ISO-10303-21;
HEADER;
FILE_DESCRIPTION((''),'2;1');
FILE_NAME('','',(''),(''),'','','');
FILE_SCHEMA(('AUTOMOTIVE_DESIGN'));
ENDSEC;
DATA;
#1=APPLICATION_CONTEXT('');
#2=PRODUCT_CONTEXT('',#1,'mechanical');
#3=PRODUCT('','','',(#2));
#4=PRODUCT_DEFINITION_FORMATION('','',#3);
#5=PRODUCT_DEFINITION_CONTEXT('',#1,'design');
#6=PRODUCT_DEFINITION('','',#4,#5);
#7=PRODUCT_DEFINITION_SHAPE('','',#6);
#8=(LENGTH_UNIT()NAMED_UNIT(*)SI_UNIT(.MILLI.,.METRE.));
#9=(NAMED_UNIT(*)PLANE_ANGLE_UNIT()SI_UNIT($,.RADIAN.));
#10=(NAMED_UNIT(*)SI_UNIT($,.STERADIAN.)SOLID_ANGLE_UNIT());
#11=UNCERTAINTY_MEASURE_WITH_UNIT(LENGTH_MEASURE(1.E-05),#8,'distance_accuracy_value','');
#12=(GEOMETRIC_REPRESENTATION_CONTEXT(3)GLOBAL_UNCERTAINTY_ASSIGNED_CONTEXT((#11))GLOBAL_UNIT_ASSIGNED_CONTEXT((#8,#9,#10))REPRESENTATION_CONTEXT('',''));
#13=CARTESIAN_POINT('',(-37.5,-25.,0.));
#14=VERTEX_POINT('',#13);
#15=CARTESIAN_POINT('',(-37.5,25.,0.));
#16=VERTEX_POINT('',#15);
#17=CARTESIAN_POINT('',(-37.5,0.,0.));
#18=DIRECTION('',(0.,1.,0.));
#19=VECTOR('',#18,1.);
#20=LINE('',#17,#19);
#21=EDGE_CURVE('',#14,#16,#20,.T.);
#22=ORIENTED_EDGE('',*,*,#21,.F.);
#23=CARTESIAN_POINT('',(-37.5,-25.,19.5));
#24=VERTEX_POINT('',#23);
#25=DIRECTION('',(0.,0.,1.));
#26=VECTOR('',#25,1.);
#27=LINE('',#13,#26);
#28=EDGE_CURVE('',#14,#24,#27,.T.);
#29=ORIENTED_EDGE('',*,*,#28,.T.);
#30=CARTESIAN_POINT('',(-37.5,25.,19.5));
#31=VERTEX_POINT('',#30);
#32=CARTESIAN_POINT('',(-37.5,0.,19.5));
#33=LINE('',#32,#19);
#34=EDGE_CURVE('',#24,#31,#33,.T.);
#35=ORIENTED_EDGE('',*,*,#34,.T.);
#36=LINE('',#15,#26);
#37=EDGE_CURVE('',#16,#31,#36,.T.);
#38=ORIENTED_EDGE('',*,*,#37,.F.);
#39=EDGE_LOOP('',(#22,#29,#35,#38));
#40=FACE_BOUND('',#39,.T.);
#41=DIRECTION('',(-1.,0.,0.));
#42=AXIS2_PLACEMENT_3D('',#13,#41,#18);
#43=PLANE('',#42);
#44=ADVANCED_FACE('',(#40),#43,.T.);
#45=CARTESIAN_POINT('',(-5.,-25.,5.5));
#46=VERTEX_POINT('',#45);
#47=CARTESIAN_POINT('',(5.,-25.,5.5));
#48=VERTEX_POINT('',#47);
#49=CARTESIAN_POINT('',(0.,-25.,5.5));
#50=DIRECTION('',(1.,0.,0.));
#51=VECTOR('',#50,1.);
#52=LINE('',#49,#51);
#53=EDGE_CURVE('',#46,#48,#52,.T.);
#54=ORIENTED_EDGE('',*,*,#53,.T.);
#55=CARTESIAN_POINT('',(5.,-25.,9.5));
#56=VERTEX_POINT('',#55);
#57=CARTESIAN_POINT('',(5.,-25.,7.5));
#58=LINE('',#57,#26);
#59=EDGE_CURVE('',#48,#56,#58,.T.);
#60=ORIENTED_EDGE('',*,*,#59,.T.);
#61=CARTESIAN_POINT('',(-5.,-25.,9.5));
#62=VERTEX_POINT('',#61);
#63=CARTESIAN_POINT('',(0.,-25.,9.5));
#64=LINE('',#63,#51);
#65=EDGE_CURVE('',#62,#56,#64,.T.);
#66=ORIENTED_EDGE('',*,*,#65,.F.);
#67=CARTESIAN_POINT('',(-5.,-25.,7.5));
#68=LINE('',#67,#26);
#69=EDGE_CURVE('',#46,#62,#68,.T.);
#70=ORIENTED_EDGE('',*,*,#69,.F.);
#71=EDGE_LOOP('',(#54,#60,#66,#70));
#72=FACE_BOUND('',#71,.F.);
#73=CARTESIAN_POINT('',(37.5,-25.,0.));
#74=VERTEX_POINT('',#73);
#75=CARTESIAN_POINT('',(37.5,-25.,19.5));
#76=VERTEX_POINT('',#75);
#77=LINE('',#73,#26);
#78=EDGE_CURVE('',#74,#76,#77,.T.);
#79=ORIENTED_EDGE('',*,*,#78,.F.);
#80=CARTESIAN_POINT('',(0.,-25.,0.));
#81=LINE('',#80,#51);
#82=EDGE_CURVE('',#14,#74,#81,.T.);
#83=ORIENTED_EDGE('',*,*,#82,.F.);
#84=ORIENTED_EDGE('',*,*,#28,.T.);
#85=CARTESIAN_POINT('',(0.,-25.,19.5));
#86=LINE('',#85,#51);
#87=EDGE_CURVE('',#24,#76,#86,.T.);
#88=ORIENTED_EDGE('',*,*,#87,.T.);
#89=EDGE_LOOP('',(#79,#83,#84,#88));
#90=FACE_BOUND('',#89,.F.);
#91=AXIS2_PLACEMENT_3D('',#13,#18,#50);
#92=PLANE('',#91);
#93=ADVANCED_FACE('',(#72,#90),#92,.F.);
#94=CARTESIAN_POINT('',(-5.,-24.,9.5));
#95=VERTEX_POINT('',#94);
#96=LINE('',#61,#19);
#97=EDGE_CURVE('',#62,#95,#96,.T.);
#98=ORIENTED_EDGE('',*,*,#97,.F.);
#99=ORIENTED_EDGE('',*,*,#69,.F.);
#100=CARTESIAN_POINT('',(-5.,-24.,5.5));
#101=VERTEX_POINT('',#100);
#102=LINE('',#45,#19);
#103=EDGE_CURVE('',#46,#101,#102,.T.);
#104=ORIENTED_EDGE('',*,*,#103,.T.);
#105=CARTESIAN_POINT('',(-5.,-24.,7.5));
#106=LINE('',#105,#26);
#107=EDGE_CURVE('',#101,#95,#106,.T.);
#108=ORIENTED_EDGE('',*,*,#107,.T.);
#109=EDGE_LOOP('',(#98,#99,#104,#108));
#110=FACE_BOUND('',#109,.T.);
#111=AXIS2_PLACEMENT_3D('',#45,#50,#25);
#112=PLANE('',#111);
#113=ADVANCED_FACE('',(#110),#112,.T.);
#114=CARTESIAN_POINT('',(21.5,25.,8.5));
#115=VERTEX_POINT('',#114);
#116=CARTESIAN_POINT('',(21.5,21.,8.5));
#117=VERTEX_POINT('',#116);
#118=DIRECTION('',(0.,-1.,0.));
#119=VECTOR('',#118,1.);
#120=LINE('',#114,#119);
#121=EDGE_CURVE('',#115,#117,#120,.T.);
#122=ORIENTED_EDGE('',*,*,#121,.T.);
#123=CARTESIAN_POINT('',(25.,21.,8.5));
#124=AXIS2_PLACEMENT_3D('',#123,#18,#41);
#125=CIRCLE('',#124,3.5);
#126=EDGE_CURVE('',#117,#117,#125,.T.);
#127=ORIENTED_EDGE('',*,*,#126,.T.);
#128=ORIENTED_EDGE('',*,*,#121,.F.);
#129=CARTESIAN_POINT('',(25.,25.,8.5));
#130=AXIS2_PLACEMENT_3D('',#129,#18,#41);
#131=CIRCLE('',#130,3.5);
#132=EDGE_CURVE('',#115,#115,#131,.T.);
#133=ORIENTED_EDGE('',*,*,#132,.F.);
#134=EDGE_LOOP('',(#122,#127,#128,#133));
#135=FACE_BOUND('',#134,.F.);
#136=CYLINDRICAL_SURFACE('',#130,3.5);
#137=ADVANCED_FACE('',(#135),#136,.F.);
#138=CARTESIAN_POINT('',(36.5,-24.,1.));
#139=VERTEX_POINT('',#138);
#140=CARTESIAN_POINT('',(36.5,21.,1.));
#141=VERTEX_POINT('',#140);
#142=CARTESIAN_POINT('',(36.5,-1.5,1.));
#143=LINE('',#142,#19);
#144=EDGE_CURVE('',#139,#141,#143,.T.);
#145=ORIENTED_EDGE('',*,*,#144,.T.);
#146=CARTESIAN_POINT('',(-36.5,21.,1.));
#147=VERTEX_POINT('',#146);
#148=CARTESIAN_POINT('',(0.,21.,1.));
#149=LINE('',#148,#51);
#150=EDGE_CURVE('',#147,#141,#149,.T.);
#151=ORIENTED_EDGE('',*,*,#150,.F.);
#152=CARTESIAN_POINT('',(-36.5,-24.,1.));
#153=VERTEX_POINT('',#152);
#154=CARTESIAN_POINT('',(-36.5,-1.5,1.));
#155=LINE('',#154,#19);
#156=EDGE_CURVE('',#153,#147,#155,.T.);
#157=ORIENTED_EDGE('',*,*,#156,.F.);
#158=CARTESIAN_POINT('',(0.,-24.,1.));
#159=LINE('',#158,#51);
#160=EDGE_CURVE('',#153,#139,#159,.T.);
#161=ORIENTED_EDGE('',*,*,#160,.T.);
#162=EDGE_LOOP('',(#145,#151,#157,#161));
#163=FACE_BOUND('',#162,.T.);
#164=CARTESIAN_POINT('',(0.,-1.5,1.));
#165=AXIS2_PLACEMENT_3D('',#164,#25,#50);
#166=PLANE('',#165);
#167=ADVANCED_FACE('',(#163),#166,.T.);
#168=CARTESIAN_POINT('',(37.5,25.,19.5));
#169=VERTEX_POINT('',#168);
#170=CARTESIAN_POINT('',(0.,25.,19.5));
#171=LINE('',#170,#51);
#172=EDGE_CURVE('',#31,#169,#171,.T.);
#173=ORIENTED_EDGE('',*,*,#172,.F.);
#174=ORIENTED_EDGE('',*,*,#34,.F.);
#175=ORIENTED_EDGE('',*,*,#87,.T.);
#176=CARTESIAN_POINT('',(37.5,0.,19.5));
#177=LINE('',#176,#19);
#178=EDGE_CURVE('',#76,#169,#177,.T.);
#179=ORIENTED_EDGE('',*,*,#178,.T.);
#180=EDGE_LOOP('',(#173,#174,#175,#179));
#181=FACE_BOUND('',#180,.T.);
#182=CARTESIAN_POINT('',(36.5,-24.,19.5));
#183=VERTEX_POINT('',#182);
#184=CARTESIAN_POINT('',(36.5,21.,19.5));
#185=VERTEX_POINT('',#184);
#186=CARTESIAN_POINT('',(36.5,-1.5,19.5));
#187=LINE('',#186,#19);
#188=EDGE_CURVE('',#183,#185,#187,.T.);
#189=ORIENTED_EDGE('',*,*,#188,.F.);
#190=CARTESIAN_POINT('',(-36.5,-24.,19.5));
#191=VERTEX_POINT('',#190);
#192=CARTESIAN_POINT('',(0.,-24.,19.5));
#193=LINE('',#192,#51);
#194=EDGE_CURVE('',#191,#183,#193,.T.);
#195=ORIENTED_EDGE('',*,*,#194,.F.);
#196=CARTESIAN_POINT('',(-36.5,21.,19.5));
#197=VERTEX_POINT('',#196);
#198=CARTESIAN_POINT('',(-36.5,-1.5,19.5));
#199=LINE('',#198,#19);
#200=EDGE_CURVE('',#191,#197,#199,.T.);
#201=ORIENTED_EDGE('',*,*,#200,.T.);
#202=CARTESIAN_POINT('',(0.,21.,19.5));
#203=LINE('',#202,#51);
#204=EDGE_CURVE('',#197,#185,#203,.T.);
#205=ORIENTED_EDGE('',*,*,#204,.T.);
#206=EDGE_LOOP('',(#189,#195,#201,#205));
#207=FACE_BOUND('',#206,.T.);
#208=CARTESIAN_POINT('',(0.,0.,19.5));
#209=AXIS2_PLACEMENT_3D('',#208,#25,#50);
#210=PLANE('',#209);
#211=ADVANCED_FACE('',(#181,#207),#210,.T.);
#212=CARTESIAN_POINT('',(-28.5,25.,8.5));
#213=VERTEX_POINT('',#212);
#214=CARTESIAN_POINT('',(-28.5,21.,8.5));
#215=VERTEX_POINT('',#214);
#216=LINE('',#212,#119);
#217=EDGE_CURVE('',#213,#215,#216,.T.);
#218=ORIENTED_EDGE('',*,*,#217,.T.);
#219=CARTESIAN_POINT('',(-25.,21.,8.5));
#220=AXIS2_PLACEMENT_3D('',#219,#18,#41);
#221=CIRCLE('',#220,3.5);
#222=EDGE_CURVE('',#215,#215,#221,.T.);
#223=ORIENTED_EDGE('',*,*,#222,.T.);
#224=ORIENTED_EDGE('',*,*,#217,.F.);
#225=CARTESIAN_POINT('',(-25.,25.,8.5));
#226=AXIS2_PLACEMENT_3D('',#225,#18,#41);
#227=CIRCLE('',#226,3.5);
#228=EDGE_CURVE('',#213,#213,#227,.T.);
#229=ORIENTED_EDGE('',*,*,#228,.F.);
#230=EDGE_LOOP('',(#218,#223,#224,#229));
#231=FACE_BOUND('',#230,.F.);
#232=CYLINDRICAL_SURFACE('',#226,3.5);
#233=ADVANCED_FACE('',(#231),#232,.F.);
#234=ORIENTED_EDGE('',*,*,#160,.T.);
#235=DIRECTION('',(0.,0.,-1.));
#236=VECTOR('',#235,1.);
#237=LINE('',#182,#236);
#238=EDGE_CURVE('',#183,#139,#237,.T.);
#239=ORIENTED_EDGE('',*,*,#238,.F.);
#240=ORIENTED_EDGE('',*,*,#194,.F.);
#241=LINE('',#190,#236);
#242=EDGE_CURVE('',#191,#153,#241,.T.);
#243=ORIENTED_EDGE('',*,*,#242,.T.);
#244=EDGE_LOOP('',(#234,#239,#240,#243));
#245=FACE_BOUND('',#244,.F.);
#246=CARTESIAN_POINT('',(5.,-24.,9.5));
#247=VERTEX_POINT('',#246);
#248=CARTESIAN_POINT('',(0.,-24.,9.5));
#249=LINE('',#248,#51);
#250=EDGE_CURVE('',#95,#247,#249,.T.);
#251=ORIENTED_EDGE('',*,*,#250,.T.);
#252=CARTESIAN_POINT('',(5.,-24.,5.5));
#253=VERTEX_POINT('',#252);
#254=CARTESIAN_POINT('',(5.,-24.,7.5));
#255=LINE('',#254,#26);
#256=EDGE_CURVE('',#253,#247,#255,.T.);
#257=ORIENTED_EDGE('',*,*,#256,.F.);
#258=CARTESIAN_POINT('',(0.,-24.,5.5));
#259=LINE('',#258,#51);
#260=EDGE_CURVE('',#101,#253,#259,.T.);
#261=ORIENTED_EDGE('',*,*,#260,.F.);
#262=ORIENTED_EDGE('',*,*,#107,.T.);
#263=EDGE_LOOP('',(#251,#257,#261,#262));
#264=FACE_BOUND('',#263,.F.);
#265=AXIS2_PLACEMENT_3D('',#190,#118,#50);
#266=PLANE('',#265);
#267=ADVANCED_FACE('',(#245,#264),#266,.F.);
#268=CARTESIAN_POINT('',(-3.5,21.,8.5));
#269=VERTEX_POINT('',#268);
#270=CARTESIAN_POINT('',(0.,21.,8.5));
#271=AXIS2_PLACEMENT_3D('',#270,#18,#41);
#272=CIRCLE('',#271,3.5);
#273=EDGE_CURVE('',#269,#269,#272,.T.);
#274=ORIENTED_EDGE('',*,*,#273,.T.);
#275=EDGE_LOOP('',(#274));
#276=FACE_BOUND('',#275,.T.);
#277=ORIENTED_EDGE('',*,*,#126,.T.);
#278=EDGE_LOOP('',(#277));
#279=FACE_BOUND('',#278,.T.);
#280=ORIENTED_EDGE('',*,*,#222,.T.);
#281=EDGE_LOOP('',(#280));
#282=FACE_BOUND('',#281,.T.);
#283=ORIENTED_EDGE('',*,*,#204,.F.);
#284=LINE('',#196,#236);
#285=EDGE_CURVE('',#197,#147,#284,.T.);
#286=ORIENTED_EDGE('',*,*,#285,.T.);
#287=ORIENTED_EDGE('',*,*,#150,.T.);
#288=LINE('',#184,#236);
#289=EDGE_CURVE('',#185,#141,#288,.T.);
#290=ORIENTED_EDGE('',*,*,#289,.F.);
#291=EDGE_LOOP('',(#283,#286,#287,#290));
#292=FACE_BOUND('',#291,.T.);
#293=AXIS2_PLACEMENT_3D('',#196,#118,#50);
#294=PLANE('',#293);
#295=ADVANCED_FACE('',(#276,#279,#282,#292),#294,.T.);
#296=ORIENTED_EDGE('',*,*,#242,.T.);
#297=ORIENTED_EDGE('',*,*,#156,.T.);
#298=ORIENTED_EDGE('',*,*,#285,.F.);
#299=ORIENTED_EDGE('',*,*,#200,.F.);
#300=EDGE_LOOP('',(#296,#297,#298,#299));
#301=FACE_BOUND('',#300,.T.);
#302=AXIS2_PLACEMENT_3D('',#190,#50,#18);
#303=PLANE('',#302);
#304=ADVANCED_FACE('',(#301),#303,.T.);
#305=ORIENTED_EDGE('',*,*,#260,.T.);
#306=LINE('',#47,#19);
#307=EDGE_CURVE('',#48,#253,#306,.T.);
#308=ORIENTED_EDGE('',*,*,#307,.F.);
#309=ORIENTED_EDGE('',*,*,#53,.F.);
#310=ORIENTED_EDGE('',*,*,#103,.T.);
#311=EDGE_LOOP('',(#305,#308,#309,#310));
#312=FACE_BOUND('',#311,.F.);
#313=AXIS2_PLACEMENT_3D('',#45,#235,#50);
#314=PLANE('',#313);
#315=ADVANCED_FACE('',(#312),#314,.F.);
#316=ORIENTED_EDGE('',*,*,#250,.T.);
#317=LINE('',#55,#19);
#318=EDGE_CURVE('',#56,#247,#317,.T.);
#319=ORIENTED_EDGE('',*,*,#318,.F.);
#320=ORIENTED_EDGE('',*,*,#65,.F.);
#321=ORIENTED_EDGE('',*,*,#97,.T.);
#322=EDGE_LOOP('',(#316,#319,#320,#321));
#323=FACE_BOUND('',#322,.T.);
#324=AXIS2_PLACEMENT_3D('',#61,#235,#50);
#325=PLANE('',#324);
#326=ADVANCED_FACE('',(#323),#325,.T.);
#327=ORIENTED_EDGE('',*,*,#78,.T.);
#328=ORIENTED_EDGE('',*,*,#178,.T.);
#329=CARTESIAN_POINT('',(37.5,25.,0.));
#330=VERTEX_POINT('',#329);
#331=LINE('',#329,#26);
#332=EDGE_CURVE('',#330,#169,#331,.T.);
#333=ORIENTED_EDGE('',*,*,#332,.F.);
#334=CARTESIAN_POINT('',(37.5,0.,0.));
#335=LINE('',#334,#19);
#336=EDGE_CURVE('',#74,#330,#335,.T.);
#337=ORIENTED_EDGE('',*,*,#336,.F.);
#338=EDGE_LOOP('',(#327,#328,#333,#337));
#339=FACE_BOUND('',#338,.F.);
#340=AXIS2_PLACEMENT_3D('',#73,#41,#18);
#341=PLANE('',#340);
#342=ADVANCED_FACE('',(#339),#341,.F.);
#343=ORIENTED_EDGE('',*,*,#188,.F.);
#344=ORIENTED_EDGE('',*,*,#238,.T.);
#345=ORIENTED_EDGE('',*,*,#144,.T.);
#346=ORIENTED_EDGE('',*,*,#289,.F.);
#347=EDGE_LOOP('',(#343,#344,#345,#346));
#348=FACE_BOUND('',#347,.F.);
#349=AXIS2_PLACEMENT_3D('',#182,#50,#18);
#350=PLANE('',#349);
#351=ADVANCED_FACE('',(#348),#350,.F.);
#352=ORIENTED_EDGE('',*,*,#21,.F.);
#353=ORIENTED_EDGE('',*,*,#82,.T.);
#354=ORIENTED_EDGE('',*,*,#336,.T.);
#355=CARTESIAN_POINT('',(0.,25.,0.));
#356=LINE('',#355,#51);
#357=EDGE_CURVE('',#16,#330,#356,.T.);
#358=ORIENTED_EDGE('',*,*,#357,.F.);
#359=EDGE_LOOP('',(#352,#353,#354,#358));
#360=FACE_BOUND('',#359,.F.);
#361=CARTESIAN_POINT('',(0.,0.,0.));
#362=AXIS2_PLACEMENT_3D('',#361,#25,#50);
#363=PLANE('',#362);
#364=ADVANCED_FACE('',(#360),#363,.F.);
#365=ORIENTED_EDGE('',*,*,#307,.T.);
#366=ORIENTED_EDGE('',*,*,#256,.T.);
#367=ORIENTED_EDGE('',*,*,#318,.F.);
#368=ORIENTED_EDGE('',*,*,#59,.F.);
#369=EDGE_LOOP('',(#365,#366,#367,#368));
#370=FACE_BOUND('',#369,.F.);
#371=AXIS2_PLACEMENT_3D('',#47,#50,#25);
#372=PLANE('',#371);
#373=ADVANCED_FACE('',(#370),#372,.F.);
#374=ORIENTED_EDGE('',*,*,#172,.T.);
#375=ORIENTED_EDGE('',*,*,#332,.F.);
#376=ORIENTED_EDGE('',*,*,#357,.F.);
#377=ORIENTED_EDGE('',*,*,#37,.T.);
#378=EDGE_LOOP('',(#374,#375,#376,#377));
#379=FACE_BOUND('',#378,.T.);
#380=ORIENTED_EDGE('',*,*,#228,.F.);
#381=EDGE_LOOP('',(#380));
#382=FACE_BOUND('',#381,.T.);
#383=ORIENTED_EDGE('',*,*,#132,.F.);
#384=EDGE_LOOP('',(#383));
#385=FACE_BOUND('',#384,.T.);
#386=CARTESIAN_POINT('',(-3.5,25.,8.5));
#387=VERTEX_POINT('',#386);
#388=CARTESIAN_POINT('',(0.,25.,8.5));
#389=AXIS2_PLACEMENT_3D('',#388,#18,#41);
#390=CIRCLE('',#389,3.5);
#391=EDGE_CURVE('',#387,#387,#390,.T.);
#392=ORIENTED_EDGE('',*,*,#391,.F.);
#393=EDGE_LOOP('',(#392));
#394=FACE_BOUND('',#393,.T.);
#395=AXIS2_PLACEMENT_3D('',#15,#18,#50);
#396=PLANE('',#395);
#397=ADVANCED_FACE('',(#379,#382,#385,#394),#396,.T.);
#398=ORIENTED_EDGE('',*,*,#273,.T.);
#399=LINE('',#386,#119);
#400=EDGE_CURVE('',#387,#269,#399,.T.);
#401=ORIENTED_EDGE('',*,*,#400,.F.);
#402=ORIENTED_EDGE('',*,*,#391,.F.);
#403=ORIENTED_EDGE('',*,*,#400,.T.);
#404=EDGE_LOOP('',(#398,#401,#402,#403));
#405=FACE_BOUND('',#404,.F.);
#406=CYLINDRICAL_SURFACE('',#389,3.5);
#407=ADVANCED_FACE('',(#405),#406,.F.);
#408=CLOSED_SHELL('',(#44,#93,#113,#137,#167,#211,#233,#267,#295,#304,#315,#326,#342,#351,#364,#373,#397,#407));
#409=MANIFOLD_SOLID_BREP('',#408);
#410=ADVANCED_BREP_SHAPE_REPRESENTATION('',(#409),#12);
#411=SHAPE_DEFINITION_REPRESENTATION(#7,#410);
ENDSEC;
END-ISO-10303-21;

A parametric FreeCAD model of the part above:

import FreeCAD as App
import Part
import Sketcher

doc = App.newDocument("Part")
body = doc.addObject("PartDesign::Body", "Body")

sketch1 = body.newObject("Sketcher::SketchObject", "Sketch")
sketch1.AttachmentSupport = (doc.getObject("XY_Plane"), [""])
sketch1.MapMode = "FlatFace"
sketch1.addGeometry(Part.LineSegment(App.Vector(-38, 25, 0), App.Vector(-38, -25, 0)), False)
sketch1.addGeometry(Part.LineSegment(App.Vector(-38, -25, 0), App.Vector(38, -25, 0)), False)
sketch1.addGeometry(Part.LineSegment(App.Vector(38, -25, 0), App.Vector(38, 25, 0)), False)
sketch1.addGeometry(Part.LineSegment(App.Vector(38, 25, 0), App.Vector(-38, 25, 0)), False)
sketch1.addConstraint(Sketcher.Constraint("Coincident", 0, 2, 1, 1))
sketch1.addConstraint(Sketcher.Constraint("Coincident", 1, 2, 2, 1))
sketch1.addConstraint(Sketcher.Constraint("Coincident", 2, 2, 3, 1))
sketch1.addConstraint(Sketcher.Constraint("Coincident", 3, 2, 0, 1))
sketch1.addConstraint(Sketcher.Constraint("Vertical", 0))
sketch1.addConstraint(Sketcher.Constraint("Horizontal", 1))
sketch1.addConstraint(Sketcher.Constraint("Vertical", 2))
sketch1.addConstraint(Sketcher.Constraint("Horizontal", 3))
sketch1.addConstraint(Sketcher.Constraint("Symmetric", 0, 2, 2, 2, -1, 1))
sketch1.addConstraint(Sketcher.Constraint("DistanceX", 1, 1, 1, 2, 75.0))
sketch1.addConstraint(Sketcher.Constraint("DistanceY", 0, 2, 0, 1, 50.0))
pad1 = body.newObject("PartDesign::Pad", "Pad")
pad1.Profile = sketch1
pad1.Length = 19.5

sketch2 = body.newObject("Sketcher::SketchObject", "Sketch001")
sketch2.AttachmentSupport = (doc.getObject("XY_Plane"), [""])
sketch2.MapMode = "FlatFace"
sketch2.AttachmentOffset = App.Placement(App.Vector(0, 0, 19.5), App.Rotation())
sketch2.addGeometry(Part.LineSegment(App.Vector(-36, 21, 0), App.Vector(-36, -24, 0)), False)
sketch2.addGeometry(Part.LineSegment(App.Vector(-36, -24, 0), App.Vector(36, -24, 0)), False)
sketch2.addGeometry(Part.LineSegment(App.Vector(36, -24, 0), App.Vector(36, 21, 0)), False)
sketch2.addGeometry(Part.LineSegment(App.Vector(36, 21, 0), App.Vector(-36, 21, 0)), False)
sketch2.addConstraint(Sketcher.Constraint("Coincident", 0, 2, 1, 1))
sketch2.addConstraint(Sketcher.Constraint("Coincident", 1, 2, 2, 1))
sketch2.addConstraint(Sketcher.Constraint("Coincident", 2, 2, 3, 1))
sketch2.addConstraint(Sketcher.Constraint("Coincident", 3, 2, 0, 1))
sketch2.addConstraint(Sketcher.Constraint("Vertical", 0))
sketch2.addConstraint(Sketcher.Constraint("Horizontal", 1))
sketch2.addConstraint(Sketcher.Constraint("Vertical", 2))
sketch2.addConstraint(Sketcher.Constraint("Horizontal", 3))
sketch2.addConstraint(Sketcher.Constraint("DistanceX", 1, 1, 1, 2, 73.0))
sketch2.addConstraint(Sketcher.Constraint("DistanceY", 0, 2, 0, 1, 45.0))
sketch2.addConstraint(Sketcher.Constraint("DistanceY", 0, 2, -1, 1, 24.0))
sketch2.addConstraint(Sketcher.Constraint("DistanceX", 0, 2, -1, 1, 36.5))
pocket1 = body.newObject("PartDesign::Pocket", "Pocket")
pocket1.Profile = sketch2
pocket1.Length = 18.5

sketch3 = body.newObject("Sketcher::SketchObject", "Sketch002")
sketch3.AttachmentSupport = (doc.getObject("XZ_Plane"), [""])
sketch3.MapMode = "FlatFace"
sketch3.AttachmentOffset = App.Placement(App.Vector(0, 0, 25), App.Rotation())
sketch3.addGeometry(Part.LineSegment(App.Vector(-5, 9.5, 0), App.Vector(-5, 5.5, 0)), False)
sketch3.addGeometry(Part.LineSegment(App.Vector(-5, 5.5, 0), App.Vector(5, 5.5, 0)), False)
sketch3.addGeometry(Part.LineSegment(App.Vector(5, 5.5, 0), App.Vector(5, 9.5, 0)), False)
sketch3.addGeometry(Part.LineSegment(App.Vector(5, 9.5, 0), App.Vector(-5, 9.5, 0)), False)
sketch3.addConstraint(Sketcher.Constraint("Coincident", 0, 2, 1, 1))
sketch3.addConstraint(Sketcher.Constraint("Coincident", 1, 2, 2, 1))
sketch3.addConstraint(Sketcher.Constraint("Coincident", 2, 2, 3, 1))
sketch3.addConstraint(Sketcher.Constraint("Coincident", 3, 2, 0, 1))
sketch3.addConstraint(Sketcher.Constraint("Vertical", 0))
sketch3.addConstraint(Sketcher.Constraint("Horizontal", 1))
sketch3.addConstraint(Sketcher.Constraint("Vertical", 2))
sketch3.addConstraint(Sketcher.Constraint("Horizontal", 3))
sketch3.addConstraint(Sketcher.Constraint("DistanceX", 1, 1, 1, 2, 10.0))
sketch3.addConstraint(Sketcher.Constraint("DistanceY", 0, 2, 0, 1, 4.0))
sketch3.addConstraint(Sketcher.Constraint("DistanceX", 0, 2, -1, 1, 5.0))
sketch3.addConstraint(Sketcher.Constraint("DistanceY", -1, 1, 0, 2, 5.5))
pocket2 = body.newObject("PartDesign::Pocket", "Pocket001")
pocket2.Profile = sketch3
pocket2.Length = 1

sketch4 = body.newObject("Sketcher::SketchObject", "Sketch003")
sketch4.AttachmentSupport = (doc.getObject("XZ_Plane"), [""])
sketch4.MapMode = "FlatFace"
sketch4.AttachmentOffset = App.Placement(App.Vector(0, 0, -25), App.Rotation())
sketch4.addGeometry(Part.Circle(App.Vector(25, 8.5, 0), App.Vector(0, 0, 1), 3.5), False)
sketch4.addGeometry(Part.Circle(App.Vector(0, 8.5, 0), App.Vector(0, 0, 1), 3.5), False)
sketch4.addGeometry(Part.Circle(App.Vector(-25, 8.5, 0), App.Vector(0, 0, 1), 3.5), False)
sketch4.addConstraint(Sketcher.Constraint("Equal", 0, 1))
sketch4.addConstraint(Sketcher.Constraint("Equal", 1, 2))
sketch4.addConstraint(Sketcher.Constraint("Symmetric", 0, 3, 2, 3, -2))
sketch4.addConstraint(Sketcher.Constraint("PointOnObject", 1, 3, -2))
sketch4.addConstraint(Sketcher.Constraint("Horizontal", 0, 3, 1, 3))
sketch4.addConstraint(Sketcher.Constraint("Diameter", 0, 7.0))
sketch4.addConstraint(Sketcher.Constraint("DistanceX", -1, 1, 0, 3, 25.0))
sketch4.addConstraint(Sketcher.Constraint("DistanceY", -1, 1, 0, 3, 8.5))
pocket3 = body.newObject("PartDesign::Pocket", "Pocket002")
pocket3.Profile = sketch4
pocket3.Length = 4
pocket3.Reversed = True

doc.recompute()
